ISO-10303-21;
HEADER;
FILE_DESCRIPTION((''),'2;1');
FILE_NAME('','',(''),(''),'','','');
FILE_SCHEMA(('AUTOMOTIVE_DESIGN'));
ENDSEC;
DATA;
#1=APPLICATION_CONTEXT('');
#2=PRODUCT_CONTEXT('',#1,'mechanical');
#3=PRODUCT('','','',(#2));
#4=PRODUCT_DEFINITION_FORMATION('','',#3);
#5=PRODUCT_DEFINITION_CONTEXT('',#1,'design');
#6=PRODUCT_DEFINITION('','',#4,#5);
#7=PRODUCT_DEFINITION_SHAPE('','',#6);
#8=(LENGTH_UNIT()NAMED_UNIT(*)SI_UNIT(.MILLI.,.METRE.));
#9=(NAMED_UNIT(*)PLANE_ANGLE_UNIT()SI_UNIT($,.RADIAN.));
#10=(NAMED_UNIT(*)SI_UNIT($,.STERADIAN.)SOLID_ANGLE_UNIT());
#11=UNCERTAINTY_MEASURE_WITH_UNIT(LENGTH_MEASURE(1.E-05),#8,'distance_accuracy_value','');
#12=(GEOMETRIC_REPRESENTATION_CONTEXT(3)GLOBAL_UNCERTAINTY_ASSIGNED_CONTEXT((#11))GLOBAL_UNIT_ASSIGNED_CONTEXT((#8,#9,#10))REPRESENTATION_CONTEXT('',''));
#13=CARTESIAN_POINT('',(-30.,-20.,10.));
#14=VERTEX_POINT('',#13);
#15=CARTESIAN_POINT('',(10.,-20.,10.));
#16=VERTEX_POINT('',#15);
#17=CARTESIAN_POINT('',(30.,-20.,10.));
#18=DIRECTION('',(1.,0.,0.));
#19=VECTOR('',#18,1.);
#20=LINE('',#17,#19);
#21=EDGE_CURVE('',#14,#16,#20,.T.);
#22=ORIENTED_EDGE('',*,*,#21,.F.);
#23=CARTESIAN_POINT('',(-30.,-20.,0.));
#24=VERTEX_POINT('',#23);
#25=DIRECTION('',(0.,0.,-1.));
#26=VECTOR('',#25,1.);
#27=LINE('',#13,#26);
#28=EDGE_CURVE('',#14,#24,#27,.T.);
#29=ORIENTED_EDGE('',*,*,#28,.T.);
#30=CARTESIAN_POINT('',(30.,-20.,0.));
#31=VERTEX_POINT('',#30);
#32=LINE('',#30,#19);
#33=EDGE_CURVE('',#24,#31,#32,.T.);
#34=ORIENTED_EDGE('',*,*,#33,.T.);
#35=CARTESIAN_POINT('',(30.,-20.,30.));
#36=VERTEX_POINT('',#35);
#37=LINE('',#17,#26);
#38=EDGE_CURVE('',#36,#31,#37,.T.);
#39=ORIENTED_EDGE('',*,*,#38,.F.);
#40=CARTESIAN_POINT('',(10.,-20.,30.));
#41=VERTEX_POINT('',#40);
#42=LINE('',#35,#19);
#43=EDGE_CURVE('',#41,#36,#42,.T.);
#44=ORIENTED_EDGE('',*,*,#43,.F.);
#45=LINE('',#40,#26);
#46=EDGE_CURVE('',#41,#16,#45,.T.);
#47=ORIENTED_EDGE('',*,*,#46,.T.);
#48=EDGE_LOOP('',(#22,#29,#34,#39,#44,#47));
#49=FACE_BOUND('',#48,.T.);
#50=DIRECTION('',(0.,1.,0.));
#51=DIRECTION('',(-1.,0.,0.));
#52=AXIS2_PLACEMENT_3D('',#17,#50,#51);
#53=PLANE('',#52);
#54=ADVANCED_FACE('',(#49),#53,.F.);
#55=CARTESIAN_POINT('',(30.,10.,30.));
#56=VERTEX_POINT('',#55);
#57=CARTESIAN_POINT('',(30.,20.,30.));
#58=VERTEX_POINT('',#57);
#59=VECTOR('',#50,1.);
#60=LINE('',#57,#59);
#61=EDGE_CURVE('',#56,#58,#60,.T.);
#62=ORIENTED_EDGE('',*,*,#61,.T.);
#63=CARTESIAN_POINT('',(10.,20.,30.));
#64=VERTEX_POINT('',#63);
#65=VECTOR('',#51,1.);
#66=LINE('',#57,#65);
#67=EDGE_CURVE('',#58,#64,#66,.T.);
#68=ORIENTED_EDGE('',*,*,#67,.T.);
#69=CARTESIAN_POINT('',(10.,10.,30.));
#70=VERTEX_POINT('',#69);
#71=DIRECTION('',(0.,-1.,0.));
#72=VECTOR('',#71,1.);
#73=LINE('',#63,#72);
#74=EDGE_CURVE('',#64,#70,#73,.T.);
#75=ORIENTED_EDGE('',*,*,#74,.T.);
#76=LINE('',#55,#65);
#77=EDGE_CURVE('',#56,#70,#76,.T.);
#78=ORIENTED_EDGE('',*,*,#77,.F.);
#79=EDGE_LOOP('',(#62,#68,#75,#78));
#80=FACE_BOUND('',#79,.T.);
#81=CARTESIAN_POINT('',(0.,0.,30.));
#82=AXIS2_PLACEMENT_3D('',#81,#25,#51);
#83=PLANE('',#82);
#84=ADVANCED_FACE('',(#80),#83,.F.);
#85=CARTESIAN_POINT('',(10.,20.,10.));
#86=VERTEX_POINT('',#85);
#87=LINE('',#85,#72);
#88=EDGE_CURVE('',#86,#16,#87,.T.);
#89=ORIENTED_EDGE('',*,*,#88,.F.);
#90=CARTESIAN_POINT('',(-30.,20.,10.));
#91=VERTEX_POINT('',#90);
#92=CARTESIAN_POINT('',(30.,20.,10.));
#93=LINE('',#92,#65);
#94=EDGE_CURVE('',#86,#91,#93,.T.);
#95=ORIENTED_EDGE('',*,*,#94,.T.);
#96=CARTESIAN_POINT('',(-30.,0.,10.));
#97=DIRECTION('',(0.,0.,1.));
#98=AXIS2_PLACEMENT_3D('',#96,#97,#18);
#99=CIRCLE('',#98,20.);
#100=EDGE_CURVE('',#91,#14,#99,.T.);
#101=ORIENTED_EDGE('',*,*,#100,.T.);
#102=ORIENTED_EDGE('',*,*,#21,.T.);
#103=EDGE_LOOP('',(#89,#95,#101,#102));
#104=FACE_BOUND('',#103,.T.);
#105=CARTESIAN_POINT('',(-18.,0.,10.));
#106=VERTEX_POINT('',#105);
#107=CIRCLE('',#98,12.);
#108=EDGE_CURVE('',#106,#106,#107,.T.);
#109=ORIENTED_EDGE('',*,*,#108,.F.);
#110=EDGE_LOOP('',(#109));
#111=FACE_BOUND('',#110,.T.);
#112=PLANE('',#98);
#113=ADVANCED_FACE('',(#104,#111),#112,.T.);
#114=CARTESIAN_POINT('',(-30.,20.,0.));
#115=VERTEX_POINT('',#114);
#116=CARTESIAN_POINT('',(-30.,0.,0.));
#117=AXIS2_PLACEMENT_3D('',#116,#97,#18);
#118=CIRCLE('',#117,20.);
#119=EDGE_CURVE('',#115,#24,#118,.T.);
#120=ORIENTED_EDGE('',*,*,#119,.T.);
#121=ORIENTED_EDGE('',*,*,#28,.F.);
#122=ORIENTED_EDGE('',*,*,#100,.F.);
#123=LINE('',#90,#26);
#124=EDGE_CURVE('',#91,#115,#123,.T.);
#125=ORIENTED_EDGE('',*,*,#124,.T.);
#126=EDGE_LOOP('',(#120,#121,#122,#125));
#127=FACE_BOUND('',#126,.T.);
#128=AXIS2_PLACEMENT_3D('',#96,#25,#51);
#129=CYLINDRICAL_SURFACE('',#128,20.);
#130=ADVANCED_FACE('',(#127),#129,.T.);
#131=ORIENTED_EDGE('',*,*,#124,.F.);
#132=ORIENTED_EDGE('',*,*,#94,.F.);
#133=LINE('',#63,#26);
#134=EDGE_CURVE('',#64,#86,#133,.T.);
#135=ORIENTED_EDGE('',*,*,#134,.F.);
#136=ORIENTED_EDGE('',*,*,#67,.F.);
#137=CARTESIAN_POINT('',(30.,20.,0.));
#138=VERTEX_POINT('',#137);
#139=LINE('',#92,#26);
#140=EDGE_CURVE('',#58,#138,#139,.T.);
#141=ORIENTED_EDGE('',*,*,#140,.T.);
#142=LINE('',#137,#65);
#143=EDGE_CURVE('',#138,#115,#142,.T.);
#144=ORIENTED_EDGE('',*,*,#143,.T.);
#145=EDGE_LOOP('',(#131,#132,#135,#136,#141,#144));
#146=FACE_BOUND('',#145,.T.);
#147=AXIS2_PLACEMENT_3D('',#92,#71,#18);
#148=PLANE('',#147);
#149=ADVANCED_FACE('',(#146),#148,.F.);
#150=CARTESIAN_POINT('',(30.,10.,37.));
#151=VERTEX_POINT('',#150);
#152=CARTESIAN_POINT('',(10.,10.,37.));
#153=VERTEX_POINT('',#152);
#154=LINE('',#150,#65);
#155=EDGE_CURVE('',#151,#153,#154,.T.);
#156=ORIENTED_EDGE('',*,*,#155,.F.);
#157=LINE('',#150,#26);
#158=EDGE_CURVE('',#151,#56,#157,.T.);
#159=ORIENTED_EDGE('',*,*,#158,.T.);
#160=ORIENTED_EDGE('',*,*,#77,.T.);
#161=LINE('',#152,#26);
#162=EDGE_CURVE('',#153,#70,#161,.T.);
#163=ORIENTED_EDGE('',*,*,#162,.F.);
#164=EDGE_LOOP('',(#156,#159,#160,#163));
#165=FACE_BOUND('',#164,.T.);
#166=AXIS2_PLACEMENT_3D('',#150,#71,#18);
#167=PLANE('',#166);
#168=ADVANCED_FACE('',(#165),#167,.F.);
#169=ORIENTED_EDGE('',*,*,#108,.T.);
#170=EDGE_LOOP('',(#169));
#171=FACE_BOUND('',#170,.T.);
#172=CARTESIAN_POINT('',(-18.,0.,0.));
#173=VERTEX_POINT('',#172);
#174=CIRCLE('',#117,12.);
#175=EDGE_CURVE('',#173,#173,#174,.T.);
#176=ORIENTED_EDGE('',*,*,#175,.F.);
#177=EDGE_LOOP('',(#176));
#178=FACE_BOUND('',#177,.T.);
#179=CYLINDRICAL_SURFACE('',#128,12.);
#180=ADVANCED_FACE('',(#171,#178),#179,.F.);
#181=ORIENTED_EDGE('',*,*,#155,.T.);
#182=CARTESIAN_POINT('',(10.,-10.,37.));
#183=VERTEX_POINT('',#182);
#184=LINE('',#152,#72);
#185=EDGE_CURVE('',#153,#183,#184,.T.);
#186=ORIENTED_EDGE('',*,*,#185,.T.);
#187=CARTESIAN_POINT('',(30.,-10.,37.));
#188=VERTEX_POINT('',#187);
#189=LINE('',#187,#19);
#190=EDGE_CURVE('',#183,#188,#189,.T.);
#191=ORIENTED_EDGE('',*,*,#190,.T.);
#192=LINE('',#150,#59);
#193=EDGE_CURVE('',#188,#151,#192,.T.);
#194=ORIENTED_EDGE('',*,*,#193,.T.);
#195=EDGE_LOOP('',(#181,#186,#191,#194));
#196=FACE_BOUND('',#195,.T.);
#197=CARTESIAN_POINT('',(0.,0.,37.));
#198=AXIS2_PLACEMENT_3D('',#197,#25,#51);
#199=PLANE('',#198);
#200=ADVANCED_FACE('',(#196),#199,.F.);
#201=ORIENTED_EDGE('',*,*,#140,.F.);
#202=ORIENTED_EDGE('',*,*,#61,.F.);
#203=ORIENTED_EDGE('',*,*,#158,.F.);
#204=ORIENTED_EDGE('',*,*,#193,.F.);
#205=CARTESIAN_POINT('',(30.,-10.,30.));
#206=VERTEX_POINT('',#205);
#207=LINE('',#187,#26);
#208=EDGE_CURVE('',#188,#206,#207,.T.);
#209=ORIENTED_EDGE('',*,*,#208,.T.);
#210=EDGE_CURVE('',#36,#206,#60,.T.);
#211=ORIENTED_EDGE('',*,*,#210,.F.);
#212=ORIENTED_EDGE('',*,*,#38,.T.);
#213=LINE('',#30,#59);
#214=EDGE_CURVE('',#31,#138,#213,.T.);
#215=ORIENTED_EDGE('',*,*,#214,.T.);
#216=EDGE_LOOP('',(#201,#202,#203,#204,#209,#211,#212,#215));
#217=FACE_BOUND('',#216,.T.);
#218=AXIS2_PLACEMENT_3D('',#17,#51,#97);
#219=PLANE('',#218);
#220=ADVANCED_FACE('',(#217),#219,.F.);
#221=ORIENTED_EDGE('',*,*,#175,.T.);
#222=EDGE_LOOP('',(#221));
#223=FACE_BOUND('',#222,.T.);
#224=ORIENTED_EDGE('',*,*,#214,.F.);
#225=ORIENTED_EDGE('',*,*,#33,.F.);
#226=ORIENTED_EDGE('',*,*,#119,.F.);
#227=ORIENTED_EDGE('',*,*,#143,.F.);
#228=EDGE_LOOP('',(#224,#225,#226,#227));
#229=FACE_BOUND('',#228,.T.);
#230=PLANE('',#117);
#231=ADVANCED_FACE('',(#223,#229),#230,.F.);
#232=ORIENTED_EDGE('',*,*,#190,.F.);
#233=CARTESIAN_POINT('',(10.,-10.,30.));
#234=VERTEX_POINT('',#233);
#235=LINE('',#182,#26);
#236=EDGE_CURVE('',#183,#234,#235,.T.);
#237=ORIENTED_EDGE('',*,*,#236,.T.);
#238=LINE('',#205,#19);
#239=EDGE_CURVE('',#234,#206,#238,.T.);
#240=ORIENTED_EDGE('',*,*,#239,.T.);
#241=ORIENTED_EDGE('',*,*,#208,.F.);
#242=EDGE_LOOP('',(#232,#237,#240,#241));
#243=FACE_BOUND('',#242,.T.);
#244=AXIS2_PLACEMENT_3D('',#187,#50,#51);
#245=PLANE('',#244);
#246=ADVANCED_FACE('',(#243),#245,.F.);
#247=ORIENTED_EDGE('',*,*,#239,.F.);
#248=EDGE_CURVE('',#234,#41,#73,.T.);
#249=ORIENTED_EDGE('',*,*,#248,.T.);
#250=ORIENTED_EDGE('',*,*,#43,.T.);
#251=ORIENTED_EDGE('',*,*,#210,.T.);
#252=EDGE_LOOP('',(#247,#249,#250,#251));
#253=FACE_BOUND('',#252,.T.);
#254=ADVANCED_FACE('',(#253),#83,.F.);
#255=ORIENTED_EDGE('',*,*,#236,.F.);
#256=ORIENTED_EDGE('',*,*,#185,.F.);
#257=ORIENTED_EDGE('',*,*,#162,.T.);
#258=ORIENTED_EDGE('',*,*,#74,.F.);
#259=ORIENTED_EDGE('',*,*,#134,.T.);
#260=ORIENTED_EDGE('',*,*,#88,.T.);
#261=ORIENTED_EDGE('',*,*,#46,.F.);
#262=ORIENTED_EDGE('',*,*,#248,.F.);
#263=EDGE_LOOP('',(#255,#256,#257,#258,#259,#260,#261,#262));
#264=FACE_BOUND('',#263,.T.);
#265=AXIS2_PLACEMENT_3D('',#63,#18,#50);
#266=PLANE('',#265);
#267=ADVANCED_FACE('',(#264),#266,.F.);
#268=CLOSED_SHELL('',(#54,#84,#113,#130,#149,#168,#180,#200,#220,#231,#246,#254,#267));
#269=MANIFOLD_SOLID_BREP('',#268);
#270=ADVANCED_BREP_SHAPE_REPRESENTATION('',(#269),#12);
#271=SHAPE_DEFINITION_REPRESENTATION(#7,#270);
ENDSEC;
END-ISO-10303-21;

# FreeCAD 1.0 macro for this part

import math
import FreeCAD as App
import Part
import Sketcher
from FreeCAD import Vector
Q = App.Units.Quantity


def add_polygon(sketch, points):
    """Adds a closed chain of lines whose ends are joined by coincident constraints."""
    first, n = sketch.GeometryCount, len(points)
    for a, b in zip(points, points[1:] + points[:1]):
        sketch.addGeometry(Part.LineSegment(App.Vector(*a, 0), App.Vector(*b, 0)), False)
    for i in range(n):
        sketch.addConstraint(Sketcher.Constraint("Coincident", first + i, 2, first + (i + 1) % n, 1))

doc = App.newDocument("Part")
body = doc.addObject("PartDesign::Body", "Body")

# Sketch on XY plane
sketch1 = body.newObject("Sketcher::SketchObject", "Sketch")
sketch1.AttachmentSupport = (doc.getObject("XY_Plane"), [""])
sketch1.MapMode = "FlatFace"
sketch1.addGeometry(Part.LineSegment(Vector(-30, -20, 0), Vector(30, -20, 0)), False)
sketch1.addGeometry(Part.LineSegment(Vector(30, -20, 0), Vector(30, 20, 0)), False)
sketch1.addGeometry(Part.LineSegment(Vector(30, 20, 0), Vector(-30, 20, 0)), False)
sketch1.addGeometry(Part.ArcOfCircle(Part.Circle(Vector(-30, 0, 0), Vector(0, 0, 1), 20), math.radians(90), math.radians(270)), False)
sketch1.addGeometry(Part.Circle(Vector(-30, 0, 0), Vector(0, 0, 1), 12), False)
sketch1.addConstraint(Sketcher.Constraint("Coincident", 0, 2, 1, 1))
sketch1.addConstraint(Sketcher.Constraint("Coincident", 1, 2, 2, 1))
sketch1.addConstraint(Sketcher.Constraint("Tangent", 2, 2, 3, 1))
sketch1.addConstraint(Sketcher.Constraint("Tangent", 3, 2, 0, 1))
sketch1.addConstraint(Sketcher.Constraint("Horizontal", 0))
sketch1.addConstraint(Sketcher.Constraint("Vertical", 1))
sketch1.addConstraint(Sketcher.Constraint("Horizontal", 2))
sketch1.addConstraint(Sketcher.Constraint("Coincident", 4, 3, 3, 3))
sketch1.addConstraint(Sketcher.Constraint("Symmetric", 0, 2, 2, 2, -1, 1))
sketch1.addConstraint(Sketcher.Constraint("Diameter", 4, Q("24 mm")))
sketch1.addConstraint(Sketcher.Constraint("Radius", 3, Q("20 mm")))
sketch1.addConstraint(Sketcher.Constraint("DistanceX", 0, 1, 0, 2, Q("60 mm")))
pad1 = body.newObject("PartDesign::Pad", "Pad")
pad1.Profile = sketch1
pad1.Length = 10

# Sketch on XY plane
sketch2 = body.newObject("Sketcher::SketchObject", "Sketch001")
sketch2.AttachmentSupport = (doc.getObject("XY_Plane"), [""])
sketch2.MapMode = "FlatFace"
sketch2.AttachmentOffset = App.Placement(Vector(0, 0, 10), App.Rotation())
add_polygon(sketch2, [(10, 20), (10, -20), (30, -20), (30, 20)])  # lines 0-3
sketch2.addConstraint(Sketcher.Constraint("Vertical", 0))
sketch2.addConstraint(Sketcher.Constraint("Horizontal", 1))
sketch2.addConstraint(Sketcher.Constraint("Vertical", 2))
sketch2.addConstraint(Sketcher.Constraint("Horizontal", 3))
sketch2.addConstraint(Sketcher.Constraint("DistanceX", 1, 1, 1, 2, Q("20 mm")))
sketch2.addConstraint(Sketcher.Constraint("DistanceY", 0, 2, 0, 1, Q("40 mm")))
sketch2.addConstraint(Sketcher.Constraint("DistanceX", -1, 1, 0, 2, Q("10 mm")))
sketch2.addConstraint(Sketcher.Constraint("DistanceY", 0, 2, -1, 1, Q("20 mm")))
pad2 = body.newObject("PartDesign::Pad", "Pad001")
pad2.Profile = sketch2
pad2.Length = 20

# Sketch on XY plane
sketch3 = body.newObject("Sketcher::SketchObject", "Sketch002")
sketch3.AttachmentSupport = (doc.getObject("XY_Plane"), [""])
sketch3.MapMode = "FlatFace"
sketch3.AttachmentOffset = App.Placement(Vector(0, 0, 30), App.Rotation())
add_polygon(sketch3, [(10, 10), (10, -10), (30, -10), (30, 10)])  # lines 0-3
sketch3.addConstraint(Sketcher.Constraint("Vertical", 0))
sketch3.addConstraint(Sketcher.Constraint("Horizontal", 1))
sketch3.addConstraint(Sketcher.Constraint("Vertical", 2))
sketch3.addConstraint(Sketcher.Constraint("Horizontal", 3))
sketch3.addConstraint(Sketcher.Constraint("Equal", 3, 0))
sketch3.addConstraint(Sketcher.Constraint("DistanceX", 1, 1, 1, 2, Q("20 mm")))
sketch3.addConstraint(Sketcher.Constraint("DistanceX", -1, 1, 0, 2, Q("10 mm")))
sketch3.addConstraint(Sketcher.Constraint("DistanceY", 0, 2, -1, 1, Q("10 mm")))
pad3 = body.newObject("PartDesign::Pad", "Pad002")
pad3.Profile = sketch3
pad3.Length = 7

doc.recompute()
